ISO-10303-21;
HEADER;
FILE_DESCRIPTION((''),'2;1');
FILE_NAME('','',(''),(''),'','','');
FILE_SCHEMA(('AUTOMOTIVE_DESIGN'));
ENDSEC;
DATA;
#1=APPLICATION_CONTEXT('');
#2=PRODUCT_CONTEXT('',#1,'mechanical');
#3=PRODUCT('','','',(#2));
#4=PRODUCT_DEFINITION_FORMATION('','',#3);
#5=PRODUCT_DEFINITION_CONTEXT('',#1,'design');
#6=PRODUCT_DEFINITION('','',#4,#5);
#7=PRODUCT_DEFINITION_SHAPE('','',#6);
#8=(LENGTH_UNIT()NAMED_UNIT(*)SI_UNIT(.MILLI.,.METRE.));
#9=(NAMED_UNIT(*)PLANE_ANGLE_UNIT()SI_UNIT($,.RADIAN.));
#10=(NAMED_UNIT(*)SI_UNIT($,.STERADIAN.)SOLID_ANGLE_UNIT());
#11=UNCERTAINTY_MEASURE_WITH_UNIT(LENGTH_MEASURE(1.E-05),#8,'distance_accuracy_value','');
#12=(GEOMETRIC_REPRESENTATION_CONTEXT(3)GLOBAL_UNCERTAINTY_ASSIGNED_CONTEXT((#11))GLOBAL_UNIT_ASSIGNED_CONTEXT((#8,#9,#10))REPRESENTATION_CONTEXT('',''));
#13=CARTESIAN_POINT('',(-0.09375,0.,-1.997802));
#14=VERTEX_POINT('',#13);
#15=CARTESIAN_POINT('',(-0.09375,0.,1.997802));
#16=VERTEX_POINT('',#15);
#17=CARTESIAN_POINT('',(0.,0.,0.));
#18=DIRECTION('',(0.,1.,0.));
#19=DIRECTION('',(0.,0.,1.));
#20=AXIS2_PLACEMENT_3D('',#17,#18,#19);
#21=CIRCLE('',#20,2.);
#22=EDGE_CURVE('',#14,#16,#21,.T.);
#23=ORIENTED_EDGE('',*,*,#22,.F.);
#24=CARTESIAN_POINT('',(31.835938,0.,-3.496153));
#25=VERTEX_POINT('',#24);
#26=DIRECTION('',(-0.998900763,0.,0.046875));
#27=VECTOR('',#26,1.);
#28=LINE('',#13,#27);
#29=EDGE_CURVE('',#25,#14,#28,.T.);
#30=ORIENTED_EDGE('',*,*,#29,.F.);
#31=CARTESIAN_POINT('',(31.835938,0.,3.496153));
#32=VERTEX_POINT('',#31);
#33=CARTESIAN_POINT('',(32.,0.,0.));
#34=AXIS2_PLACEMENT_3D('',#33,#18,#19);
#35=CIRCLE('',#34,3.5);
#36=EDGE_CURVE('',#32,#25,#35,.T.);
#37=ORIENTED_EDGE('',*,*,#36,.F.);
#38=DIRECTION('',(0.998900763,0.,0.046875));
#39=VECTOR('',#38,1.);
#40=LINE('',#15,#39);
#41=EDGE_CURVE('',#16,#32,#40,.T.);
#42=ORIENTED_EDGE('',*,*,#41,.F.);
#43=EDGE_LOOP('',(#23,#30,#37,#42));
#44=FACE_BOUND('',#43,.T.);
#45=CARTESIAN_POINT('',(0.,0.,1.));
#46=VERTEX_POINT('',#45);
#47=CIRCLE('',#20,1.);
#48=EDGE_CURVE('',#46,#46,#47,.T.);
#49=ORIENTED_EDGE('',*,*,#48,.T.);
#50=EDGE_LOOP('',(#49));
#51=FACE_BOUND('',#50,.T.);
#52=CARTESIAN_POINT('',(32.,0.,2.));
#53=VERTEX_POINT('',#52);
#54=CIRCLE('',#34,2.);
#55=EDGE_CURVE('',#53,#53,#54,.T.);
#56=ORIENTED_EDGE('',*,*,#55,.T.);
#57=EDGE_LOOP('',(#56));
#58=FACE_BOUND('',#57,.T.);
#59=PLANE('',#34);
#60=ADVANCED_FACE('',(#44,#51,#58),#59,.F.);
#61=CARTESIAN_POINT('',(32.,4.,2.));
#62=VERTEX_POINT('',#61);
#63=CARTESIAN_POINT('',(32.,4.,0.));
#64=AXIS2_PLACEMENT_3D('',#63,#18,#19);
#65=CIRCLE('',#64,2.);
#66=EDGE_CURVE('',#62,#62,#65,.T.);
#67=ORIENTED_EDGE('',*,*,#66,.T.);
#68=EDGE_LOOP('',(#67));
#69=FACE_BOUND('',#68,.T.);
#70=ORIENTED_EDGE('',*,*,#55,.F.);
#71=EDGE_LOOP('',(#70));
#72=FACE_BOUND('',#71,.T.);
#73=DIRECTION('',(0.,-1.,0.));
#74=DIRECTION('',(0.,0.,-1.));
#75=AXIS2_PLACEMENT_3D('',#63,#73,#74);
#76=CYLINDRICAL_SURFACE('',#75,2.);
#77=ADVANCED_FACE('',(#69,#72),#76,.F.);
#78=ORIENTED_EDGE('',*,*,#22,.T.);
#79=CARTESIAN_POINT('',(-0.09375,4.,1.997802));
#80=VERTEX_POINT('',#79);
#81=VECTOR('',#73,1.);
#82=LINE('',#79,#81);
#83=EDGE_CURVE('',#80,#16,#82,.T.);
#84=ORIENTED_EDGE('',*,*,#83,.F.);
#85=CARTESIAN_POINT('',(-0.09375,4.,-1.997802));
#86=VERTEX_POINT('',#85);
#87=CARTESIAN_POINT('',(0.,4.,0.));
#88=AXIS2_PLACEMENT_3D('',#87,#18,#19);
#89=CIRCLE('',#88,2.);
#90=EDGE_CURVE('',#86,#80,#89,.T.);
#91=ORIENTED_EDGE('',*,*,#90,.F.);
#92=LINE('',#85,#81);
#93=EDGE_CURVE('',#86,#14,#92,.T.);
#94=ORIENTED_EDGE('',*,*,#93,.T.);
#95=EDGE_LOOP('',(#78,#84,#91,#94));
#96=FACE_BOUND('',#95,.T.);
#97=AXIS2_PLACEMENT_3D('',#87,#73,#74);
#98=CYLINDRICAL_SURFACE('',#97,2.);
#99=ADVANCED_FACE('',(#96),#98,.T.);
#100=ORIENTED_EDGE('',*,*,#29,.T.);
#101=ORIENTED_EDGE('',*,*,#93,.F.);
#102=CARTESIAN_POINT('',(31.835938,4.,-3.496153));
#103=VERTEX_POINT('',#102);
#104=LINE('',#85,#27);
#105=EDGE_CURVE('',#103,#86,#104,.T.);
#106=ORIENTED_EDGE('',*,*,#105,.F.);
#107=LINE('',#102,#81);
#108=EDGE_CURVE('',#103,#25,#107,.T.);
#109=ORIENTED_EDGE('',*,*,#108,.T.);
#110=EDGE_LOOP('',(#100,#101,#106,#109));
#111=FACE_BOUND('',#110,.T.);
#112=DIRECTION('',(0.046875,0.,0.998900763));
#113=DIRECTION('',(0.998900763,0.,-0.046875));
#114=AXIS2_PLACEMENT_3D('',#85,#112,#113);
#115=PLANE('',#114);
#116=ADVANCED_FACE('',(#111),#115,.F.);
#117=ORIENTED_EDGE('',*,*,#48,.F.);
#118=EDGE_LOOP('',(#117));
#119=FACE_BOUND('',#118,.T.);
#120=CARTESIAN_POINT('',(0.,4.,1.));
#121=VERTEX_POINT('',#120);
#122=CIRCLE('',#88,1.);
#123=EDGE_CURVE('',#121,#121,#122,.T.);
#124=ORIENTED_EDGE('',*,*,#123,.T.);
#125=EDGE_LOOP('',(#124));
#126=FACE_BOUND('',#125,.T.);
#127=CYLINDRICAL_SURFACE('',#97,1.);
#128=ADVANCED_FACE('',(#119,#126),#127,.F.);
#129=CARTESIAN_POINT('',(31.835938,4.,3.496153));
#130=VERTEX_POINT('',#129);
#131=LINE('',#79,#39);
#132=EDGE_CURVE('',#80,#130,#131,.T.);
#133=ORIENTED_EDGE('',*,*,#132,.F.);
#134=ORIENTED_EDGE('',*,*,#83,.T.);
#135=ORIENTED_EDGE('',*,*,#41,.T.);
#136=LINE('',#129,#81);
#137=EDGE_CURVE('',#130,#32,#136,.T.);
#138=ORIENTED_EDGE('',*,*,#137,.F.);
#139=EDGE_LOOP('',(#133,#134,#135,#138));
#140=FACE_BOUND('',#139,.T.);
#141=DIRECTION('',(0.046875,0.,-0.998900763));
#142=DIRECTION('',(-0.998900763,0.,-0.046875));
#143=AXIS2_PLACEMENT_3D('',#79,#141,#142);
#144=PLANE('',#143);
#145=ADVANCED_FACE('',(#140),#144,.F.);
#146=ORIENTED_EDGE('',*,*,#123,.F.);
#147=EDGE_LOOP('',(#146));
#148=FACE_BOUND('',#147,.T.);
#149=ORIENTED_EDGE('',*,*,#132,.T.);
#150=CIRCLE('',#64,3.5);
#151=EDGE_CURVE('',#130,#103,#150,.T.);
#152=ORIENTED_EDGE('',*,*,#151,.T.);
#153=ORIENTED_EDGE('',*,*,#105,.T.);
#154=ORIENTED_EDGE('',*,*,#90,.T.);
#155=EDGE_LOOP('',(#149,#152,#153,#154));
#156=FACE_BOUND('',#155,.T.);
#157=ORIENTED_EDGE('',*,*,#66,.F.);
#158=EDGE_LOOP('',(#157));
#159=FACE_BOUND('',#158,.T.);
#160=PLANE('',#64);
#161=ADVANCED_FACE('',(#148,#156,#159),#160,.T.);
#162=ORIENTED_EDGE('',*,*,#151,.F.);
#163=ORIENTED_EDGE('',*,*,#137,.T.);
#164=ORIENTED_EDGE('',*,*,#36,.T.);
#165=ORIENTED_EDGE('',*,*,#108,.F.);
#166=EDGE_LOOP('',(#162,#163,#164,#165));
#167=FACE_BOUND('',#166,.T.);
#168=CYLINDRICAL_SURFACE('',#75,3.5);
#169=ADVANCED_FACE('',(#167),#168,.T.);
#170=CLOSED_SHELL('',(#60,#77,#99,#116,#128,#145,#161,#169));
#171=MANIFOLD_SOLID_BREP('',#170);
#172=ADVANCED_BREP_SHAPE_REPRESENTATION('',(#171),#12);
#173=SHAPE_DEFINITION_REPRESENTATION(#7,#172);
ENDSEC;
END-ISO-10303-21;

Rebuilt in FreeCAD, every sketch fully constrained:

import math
import FreeCAD as App
import Part
import Sketcher
from FreeCAD import Vector

doc = App.newDocument("Part")
body = doc.addObject("PartDesign::Body", "Body")

# Sketch on XZ plane
sketch1 = doc.addObject("Sketcher::SketchObject", "Sketch")
body.addObject(sketch1)
sketch1.AttachmentSupport = (doc.XZ_Plane, [""])
sketch1.MapMode = "FlatFace"
sketch1.addGeometry(Part.LineSegment(Vector(31.835938, -3.496153, 0), Vector(-0.09375, -1.997802, 0)), False)
sketch1.addGeometry(Part.ArcOfCircle(Part.Circle(Vector(0, 0, 0), Vector(0, 0, 1), 2), math.radians(92.686724), math.radians(267.313276)), False)
sketch1.addGeometry(Part.LineSegment(Vector(-0.09375, 1.997802, 0), Vector(31.835938, 3.496153, 0)), False)
sketch1.addGeometry(Part.ArcOfCircle(Part.Circle(Vector(32, 0, 0), Vector(0, 0, 1), 3.5), math.radians(-92.686724), math.radians(92.686724)), False)
sketch1.addGeometry(Part.Circle(Vector(32, 0, 0), Vector(0, 0, 1), 2), False)
sketch1.addGeometry(Part.Circle(Vector(0, 0, 0), Vector(0, 0, 1), 1), False)
sketch1.addConstraint(Sketcher.Constraint("Tangent", 0, 2, 1, 2))
sketch1.addConstraint(Sketcher.Constraint("Tangent", 1, 1, 2, 1))
sketch1.addConstraint(Sketcher.Constraint("Tangent", 2, 2, 3, 2))
sketch1.addConstraint(Sketcher.Constraint("Tangent", 3, 1, 0, 1))
sketch1.addConstraint(Sketcher.Constraint("Coincident", 1, 3, -1, 1))
sketch1.addConstraint(Sketcher.Constraint("Coincident", 5, 3, -1, 1))
sketch1.addConstraint(Sketcher.Constraint("Coincident", 4, 3, 3, 3))
sketch1.addConstraint(Sketcher.Constraint("Equal", 1, 4))
sketch1.addConstraint(Sketcher.Constraint("PointOnObject", 3, 3, -1))
sketch1.addConstraint(Sketcher.Constraint("Diameter", 4, 4.0))
sketch1.addConstraint(Sketcher.Constraint("Diameter", 5, 2.0))
sketch1.addConstraint(Sketcher.Constraint("Radius", 3, 3.5))
sketch1.addConstraint(Sketcher.Constraint("DistanceX", -1, 1, 3, 3, 32.0))
pad1 = doc.addObject("PartDesign::Pad", "Pad")
body.addObject(pad1)
pad1.Profile = sketch1
pad1.Length = 4
pad1.Reversed = True

doc.recompute()
